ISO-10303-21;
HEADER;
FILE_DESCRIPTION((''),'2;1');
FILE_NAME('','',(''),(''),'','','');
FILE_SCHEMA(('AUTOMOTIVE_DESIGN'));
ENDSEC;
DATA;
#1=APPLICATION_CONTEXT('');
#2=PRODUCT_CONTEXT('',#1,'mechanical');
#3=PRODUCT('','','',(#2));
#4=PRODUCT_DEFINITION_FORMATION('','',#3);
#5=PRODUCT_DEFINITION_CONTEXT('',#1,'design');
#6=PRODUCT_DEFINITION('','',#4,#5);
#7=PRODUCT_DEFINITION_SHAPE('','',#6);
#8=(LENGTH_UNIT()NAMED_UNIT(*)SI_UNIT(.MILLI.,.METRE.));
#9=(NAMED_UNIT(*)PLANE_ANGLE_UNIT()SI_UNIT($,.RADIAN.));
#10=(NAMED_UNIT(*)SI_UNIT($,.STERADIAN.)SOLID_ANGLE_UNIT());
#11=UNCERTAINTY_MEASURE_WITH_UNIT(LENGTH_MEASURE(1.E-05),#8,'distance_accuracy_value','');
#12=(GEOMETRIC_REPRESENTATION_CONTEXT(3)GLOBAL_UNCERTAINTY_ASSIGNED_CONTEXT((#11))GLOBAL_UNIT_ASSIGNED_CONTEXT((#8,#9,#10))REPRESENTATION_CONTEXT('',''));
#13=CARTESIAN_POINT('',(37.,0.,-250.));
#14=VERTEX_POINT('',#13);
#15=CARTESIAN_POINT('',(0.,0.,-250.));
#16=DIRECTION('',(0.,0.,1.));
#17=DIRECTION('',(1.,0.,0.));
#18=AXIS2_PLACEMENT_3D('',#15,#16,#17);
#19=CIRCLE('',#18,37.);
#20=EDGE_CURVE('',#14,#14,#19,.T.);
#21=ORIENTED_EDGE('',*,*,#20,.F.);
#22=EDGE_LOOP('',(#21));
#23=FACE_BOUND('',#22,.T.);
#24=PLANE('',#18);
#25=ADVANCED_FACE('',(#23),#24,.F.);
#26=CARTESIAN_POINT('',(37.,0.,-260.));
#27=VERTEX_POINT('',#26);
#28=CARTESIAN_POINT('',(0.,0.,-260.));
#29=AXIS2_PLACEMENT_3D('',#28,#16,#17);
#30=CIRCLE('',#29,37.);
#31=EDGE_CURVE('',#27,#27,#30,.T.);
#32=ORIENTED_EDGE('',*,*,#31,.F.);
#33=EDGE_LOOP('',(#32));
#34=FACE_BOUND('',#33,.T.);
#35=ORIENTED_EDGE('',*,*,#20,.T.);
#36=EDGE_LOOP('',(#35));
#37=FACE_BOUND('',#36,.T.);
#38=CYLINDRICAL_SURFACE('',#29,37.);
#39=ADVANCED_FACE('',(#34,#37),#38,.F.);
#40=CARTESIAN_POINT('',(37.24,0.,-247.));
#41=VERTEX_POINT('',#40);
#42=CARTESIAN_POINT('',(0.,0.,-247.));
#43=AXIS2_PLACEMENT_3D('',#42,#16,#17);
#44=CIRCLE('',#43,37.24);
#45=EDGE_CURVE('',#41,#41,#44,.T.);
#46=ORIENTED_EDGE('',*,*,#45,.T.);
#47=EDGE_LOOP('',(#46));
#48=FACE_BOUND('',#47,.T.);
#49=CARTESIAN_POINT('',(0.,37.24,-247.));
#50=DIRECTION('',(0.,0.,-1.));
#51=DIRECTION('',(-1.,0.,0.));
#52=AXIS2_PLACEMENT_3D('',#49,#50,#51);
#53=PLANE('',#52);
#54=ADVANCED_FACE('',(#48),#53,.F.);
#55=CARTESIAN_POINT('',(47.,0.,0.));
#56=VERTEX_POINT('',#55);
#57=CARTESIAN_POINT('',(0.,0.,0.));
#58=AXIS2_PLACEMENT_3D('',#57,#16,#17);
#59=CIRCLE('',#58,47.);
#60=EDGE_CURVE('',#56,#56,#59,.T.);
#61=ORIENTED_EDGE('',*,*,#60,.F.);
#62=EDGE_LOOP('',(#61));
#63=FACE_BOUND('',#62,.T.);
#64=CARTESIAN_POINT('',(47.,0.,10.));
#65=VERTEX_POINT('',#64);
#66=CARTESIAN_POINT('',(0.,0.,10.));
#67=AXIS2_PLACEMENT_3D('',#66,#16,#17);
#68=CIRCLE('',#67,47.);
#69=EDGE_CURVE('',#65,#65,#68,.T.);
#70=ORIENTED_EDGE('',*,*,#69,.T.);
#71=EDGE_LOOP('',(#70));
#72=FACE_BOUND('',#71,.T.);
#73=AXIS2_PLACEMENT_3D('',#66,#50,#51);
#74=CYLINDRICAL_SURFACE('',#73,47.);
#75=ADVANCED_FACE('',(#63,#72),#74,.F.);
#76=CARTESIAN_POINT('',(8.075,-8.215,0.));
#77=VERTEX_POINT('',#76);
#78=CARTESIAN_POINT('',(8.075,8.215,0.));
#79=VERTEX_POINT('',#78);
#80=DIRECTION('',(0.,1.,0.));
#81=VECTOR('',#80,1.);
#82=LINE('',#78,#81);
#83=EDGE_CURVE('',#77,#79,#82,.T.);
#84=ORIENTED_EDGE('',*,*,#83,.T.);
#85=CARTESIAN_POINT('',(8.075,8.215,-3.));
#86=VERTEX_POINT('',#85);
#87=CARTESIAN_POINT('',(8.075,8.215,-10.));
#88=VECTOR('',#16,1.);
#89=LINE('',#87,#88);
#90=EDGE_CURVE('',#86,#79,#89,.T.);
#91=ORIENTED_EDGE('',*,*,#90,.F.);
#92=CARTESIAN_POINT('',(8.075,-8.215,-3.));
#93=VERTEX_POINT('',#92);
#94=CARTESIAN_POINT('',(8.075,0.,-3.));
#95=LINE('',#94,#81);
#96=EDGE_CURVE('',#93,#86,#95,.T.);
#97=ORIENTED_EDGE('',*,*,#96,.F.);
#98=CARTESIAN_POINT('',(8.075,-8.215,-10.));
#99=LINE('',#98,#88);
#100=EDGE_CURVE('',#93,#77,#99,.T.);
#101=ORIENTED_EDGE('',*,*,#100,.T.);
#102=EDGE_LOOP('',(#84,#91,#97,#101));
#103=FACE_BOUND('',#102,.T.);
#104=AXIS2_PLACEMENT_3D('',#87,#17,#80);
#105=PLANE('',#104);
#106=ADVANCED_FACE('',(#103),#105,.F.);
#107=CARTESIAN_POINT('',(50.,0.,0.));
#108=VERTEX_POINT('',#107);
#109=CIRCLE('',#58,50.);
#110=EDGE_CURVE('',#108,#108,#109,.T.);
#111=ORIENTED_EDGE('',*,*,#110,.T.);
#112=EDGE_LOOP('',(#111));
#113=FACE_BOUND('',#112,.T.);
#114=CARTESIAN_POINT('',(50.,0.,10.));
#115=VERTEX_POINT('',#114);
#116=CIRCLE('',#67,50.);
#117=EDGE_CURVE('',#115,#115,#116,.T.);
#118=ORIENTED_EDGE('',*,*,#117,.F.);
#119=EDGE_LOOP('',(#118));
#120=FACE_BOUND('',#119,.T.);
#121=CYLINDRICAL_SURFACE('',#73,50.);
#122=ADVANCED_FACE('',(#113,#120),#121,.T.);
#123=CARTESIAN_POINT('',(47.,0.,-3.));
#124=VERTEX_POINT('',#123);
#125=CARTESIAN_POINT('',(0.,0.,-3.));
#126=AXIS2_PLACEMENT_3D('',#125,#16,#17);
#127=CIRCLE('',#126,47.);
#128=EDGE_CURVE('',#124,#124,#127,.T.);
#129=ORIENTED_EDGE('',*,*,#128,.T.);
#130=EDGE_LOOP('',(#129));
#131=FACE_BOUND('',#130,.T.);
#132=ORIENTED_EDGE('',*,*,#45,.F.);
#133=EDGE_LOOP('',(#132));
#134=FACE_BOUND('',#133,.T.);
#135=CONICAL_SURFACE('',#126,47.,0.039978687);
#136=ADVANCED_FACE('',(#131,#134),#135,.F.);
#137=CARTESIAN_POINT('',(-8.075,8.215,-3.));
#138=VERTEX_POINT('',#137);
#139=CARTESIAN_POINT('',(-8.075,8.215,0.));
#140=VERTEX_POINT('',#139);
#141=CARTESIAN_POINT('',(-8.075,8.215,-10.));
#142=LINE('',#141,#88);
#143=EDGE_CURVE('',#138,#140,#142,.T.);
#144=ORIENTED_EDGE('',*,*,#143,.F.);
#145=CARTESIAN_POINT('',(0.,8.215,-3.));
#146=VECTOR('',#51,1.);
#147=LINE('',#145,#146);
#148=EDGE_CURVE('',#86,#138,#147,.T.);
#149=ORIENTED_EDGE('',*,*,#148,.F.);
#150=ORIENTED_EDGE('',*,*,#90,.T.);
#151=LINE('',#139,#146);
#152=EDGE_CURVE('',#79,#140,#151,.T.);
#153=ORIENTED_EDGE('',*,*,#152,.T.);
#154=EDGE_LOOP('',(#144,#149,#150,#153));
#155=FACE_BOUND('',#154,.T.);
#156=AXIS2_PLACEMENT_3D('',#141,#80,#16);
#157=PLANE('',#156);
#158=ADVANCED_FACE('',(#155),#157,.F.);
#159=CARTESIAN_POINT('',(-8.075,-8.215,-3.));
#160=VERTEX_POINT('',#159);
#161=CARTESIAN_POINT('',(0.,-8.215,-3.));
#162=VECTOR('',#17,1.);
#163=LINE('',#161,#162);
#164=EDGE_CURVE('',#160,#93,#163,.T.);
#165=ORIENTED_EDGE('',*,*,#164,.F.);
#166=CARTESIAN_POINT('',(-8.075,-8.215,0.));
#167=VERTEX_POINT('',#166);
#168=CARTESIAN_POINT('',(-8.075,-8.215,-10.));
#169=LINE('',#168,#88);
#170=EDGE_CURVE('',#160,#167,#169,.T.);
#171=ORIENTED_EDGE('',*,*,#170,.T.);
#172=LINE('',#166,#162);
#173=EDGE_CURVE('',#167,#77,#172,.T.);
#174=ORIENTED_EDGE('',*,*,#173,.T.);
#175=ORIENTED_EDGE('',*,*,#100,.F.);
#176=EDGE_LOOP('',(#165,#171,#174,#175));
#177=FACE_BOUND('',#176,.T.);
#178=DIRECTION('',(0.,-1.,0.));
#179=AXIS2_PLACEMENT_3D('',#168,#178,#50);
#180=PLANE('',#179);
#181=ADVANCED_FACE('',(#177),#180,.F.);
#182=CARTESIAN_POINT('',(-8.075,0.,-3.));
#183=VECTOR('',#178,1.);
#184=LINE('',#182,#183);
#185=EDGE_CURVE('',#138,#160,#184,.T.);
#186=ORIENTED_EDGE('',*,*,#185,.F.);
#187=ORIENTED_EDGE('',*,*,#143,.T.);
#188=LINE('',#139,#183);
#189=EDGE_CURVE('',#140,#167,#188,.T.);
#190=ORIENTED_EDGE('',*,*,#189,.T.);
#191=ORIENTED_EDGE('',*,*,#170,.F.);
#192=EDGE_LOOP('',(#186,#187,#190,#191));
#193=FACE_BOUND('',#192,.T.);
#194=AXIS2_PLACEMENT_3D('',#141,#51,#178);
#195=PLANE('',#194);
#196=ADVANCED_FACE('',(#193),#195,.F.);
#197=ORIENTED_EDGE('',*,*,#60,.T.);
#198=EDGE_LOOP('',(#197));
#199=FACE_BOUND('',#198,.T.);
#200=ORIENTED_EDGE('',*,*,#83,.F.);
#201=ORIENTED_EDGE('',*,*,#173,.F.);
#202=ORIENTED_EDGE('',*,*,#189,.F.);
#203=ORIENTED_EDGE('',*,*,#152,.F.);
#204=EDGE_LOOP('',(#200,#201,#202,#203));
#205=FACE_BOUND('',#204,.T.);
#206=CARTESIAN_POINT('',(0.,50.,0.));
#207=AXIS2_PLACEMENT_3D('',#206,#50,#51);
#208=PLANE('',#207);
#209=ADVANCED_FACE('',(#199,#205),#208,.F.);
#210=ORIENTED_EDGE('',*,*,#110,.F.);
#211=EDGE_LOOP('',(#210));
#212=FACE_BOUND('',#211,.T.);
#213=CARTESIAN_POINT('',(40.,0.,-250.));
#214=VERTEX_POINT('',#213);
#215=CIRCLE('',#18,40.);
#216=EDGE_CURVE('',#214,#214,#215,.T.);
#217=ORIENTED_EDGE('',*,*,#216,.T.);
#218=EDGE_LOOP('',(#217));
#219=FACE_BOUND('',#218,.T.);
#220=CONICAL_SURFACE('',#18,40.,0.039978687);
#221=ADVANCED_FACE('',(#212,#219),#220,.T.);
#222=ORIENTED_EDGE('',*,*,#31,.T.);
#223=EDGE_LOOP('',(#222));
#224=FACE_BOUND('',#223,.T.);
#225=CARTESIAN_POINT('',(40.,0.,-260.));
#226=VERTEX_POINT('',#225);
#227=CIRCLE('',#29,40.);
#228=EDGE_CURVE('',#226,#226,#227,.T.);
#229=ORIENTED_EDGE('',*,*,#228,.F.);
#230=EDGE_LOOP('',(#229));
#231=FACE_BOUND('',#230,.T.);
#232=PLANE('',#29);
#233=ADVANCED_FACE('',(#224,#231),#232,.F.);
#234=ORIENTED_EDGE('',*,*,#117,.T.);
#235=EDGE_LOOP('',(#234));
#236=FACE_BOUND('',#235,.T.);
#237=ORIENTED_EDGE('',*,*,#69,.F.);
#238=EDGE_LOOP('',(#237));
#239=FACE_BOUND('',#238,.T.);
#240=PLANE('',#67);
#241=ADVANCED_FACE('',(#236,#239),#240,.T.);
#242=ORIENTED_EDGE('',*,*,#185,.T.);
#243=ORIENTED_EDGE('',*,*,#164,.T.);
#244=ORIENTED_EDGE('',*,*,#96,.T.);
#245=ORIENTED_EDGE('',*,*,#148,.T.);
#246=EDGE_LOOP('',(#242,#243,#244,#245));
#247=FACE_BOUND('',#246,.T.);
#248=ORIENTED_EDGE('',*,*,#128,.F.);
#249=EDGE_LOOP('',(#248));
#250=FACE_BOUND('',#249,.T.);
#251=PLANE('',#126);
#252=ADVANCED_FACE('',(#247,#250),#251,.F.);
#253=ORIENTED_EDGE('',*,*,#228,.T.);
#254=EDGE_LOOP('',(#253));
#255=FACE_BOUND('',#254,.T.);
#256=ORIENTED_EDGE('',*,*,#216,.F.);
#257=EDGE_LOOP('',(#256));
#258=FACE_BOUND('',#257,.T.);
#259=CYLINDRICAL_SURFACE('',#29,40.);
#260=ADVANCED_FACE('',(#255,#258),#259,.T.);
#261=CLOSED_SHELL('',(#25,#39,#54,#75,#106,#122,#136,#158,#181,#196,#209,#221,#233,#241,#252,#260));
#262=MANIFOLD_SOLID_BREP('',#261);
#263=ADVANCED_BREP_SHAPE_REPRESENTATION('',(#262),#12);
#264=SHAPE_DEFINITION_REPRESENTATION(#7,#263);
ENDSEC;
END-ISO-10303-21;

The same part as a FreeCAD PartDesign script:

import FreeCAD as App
import Part
import Sketcher
from FreeCAD import Vector


def add_polygon(sketch, points):
    """Adds a closed chain of lines whose ends are joined by coincident constraints."""
    first, n = sketch.GeometryCount, len(points)
    for a, b in zip(points, points[1:] + points[:1]):
        sketch.addGeometry(Part.LineSegment(App.Vector(*a, 0), App.Vector(*b, 0)), False)
    for i in range(n):
        sketch.addConstraint(Sketcher.Constraint("Coincident", first + i, 2, first + (i + 1) % n, 1))

doc = App.newDocument("Part")
body = doc.addObject("PartDesign::Body", "Body")

# Sketch on YZ plane
sketch1 = doc.addObject("Sketcher::SketchObject", "Sketch")
body.addObject(sketch1)
sketch1.AttachmentSupport = (doc.YZ_Plane, [""])
sketch1.MapMode = "FlatFace"
add_polygon(sketch1, [(0, 0), (0, -3), (47, -3), (37.24, -247), (0, -247), (0, -250), (40, -250), (50, 0)])  # lines 0-7
sketch1.addConstraint(Sketcher.Constraint("Vertical", 0))
sketch1.addConstraint(Sketcher.Constraint("Horizontal", 1))
sketch1.addConstraint(Sketcher.Constraint("Horizontal", 3))
sketch1.addConstraint(Sketcher.Constraint("Vertical", 4))
sketch1.addConstraint(Sketcher.Constraint("Horizontal", 5))
sketch1.addConstraint(Sketcher.Constraint("Horizontal", 7))
sketch1.addConstraint(Sketcher.Constraint("Coincident", 7, 2, -1, 1))
sketch1.addConstraint(Sketcher.Constraint("PointOnObject", 3, 2, -2))
sketch1.addConstraint(Sketcher.Constraint("Parallel", 2, 6))
sketch1.addConstraint(Sketcher.Constraint("Equal", 0, 4))
sketch1.addConstraint(Sketcher.Constraint("DistanceX", 1, 1, 1, 2, 47.0))
sketch1.addConstraint(Sketcher.Constraint("DistanceX", 5, 1, 5, 2, 40.0))
sketch1.addConstraint(Sketcher.Constraint("DistanceX", 7, 2, 7, 1, 50.0))
sketch1.addConstraint(Sketcher.Constraint("DistanceY", 0, 2, 0, 1, 3.0))
sketch1.addConstraint(Sketcher.Constraint("DistanceY", 2, 2, -1, 1, 247.0))
revolution = doc.addObject("PartDesign::Revolution", "Revolution")
body.addObject(revolution)
revolution.Profile = sketch1
revolution.ReferenceAxis = (sketch1, ["V_Axis"])
revolution.Angle = 360

# Sketch on XY plane
sketch2 = doc.addObject("Sketcher::SketchObject", "Sketch001")
body.addObject(sketch2)
sketch2.AttachmentSupport = (doc.XY_Plane, [""])
sketch2.MapMode = "FlatFace"
sketch2.addGeometry(Part.Circle(Vector(0, 0, 0), Vector(0, 0, 1), 50), False)
sketch2.addGeometry(Part.Circle(Vector(0, 0, 0), Vector(0, 0, 1), 47), False)
sketch2.addConstraint(Sketcher.Constraint("Coincident", 0, 3, -1, 1))
sketch2.addConstraint(Sketcher.Constraint("Coincident", 1, 3, -1, 1))
sketch2.addConstraint(Sketcher.Constraint("Diameter", 0, 100.0))
sketch2.addConstraint(Sketcher.Constraint("Diameter", 1, 94.0))
pad1 = doc.addObject("PartDesign::Pad", "Pad")
body.addObject(pad1)
pad1.Profile = sketch2
pad1.Length = 10

# Sketch on XY plane
sketch3 = doc.addObject("Sketcher::SketchObject", "Sketch002")
body.addObject(sketch3)
sketch3.AttachmentSupport = (doc.XY_Plane, [""])
sketch3.MapMode = "FlatFace"
add_polygon(sketch3, [(-8.075, 8.215), (-8.075, -8.215), (8.075, -8.215), (8.075, 8.215)])  # lines 0-3
sketch3.addConstraint(Sketcher.Constraint("Vertical", 0))
sketch3.addConstraint(Sketcher.Constraint("Horizontal", 1))
sketch3.addConstraint(Sketcher.Constraint("Vertical", 2))
sketch3.addConstraint(Sketcher.Constraint("Horizontal", 3))
sketch3.addConstraint(Sketcher.Constraint("Symmetric", 0, 2, 2, 2, -1, 1))
sketch3.addConstraint(Sketcher.Constraint("DistanceX", 1, 1, 1, 2, 16.15))
sketch3.addConstraint(Sketcher.Constraint("DistanceY", 0, 2, 0, 1, 16.43))
pocket1 = doc.addObject("PartDesign::Pocket", "Pocket")
body.addObject(pocket1)
pocket1.Profile = sketch3
pocket1.Length = 10

# Sketch on XY plane
sketch4 = doc.addObject("Sketcher::SketchObject", "Sketch003")
body.addObject(sketch4)
sketch4.AttachmentSupport = (doc.XY_Plane, [""])
sketch4.MapMode = "FlatFace"
sketch4.AttachmentOffset = App.Placement(Vector(0, 0, -250), App.Rotation())
sketch4.addGeometry(Part.Circle(Vector(0, 0, 0), Vector(0, 0, 1), 40), False)
sketch4.addGeometry(Part.Circle(Vector(0, 0, 0), Vector(0, 0, 1), 37), False)
sketch4.addConstraint(Sketcher.Constraint("Coincident", 0, 3, -1, 1))
sketch4.addConstraint(Sketcher.Constraint("Coincident", 1, 3, -1, 1))
sketch4.addConstraint(Sketcher.Constraint("Diameter", 0, 80.0))
sketch4.addConstraint(Sketcher.Constraint("Diameter", 1, 74.0))
pad2 = doc.addObject("PartDesign::Pad", "Pad001")
body.addObject(pad2)
pad2.Profile = sketch4
pad2.Length = 10
pad2.Reversed = True

doc.recompute()
